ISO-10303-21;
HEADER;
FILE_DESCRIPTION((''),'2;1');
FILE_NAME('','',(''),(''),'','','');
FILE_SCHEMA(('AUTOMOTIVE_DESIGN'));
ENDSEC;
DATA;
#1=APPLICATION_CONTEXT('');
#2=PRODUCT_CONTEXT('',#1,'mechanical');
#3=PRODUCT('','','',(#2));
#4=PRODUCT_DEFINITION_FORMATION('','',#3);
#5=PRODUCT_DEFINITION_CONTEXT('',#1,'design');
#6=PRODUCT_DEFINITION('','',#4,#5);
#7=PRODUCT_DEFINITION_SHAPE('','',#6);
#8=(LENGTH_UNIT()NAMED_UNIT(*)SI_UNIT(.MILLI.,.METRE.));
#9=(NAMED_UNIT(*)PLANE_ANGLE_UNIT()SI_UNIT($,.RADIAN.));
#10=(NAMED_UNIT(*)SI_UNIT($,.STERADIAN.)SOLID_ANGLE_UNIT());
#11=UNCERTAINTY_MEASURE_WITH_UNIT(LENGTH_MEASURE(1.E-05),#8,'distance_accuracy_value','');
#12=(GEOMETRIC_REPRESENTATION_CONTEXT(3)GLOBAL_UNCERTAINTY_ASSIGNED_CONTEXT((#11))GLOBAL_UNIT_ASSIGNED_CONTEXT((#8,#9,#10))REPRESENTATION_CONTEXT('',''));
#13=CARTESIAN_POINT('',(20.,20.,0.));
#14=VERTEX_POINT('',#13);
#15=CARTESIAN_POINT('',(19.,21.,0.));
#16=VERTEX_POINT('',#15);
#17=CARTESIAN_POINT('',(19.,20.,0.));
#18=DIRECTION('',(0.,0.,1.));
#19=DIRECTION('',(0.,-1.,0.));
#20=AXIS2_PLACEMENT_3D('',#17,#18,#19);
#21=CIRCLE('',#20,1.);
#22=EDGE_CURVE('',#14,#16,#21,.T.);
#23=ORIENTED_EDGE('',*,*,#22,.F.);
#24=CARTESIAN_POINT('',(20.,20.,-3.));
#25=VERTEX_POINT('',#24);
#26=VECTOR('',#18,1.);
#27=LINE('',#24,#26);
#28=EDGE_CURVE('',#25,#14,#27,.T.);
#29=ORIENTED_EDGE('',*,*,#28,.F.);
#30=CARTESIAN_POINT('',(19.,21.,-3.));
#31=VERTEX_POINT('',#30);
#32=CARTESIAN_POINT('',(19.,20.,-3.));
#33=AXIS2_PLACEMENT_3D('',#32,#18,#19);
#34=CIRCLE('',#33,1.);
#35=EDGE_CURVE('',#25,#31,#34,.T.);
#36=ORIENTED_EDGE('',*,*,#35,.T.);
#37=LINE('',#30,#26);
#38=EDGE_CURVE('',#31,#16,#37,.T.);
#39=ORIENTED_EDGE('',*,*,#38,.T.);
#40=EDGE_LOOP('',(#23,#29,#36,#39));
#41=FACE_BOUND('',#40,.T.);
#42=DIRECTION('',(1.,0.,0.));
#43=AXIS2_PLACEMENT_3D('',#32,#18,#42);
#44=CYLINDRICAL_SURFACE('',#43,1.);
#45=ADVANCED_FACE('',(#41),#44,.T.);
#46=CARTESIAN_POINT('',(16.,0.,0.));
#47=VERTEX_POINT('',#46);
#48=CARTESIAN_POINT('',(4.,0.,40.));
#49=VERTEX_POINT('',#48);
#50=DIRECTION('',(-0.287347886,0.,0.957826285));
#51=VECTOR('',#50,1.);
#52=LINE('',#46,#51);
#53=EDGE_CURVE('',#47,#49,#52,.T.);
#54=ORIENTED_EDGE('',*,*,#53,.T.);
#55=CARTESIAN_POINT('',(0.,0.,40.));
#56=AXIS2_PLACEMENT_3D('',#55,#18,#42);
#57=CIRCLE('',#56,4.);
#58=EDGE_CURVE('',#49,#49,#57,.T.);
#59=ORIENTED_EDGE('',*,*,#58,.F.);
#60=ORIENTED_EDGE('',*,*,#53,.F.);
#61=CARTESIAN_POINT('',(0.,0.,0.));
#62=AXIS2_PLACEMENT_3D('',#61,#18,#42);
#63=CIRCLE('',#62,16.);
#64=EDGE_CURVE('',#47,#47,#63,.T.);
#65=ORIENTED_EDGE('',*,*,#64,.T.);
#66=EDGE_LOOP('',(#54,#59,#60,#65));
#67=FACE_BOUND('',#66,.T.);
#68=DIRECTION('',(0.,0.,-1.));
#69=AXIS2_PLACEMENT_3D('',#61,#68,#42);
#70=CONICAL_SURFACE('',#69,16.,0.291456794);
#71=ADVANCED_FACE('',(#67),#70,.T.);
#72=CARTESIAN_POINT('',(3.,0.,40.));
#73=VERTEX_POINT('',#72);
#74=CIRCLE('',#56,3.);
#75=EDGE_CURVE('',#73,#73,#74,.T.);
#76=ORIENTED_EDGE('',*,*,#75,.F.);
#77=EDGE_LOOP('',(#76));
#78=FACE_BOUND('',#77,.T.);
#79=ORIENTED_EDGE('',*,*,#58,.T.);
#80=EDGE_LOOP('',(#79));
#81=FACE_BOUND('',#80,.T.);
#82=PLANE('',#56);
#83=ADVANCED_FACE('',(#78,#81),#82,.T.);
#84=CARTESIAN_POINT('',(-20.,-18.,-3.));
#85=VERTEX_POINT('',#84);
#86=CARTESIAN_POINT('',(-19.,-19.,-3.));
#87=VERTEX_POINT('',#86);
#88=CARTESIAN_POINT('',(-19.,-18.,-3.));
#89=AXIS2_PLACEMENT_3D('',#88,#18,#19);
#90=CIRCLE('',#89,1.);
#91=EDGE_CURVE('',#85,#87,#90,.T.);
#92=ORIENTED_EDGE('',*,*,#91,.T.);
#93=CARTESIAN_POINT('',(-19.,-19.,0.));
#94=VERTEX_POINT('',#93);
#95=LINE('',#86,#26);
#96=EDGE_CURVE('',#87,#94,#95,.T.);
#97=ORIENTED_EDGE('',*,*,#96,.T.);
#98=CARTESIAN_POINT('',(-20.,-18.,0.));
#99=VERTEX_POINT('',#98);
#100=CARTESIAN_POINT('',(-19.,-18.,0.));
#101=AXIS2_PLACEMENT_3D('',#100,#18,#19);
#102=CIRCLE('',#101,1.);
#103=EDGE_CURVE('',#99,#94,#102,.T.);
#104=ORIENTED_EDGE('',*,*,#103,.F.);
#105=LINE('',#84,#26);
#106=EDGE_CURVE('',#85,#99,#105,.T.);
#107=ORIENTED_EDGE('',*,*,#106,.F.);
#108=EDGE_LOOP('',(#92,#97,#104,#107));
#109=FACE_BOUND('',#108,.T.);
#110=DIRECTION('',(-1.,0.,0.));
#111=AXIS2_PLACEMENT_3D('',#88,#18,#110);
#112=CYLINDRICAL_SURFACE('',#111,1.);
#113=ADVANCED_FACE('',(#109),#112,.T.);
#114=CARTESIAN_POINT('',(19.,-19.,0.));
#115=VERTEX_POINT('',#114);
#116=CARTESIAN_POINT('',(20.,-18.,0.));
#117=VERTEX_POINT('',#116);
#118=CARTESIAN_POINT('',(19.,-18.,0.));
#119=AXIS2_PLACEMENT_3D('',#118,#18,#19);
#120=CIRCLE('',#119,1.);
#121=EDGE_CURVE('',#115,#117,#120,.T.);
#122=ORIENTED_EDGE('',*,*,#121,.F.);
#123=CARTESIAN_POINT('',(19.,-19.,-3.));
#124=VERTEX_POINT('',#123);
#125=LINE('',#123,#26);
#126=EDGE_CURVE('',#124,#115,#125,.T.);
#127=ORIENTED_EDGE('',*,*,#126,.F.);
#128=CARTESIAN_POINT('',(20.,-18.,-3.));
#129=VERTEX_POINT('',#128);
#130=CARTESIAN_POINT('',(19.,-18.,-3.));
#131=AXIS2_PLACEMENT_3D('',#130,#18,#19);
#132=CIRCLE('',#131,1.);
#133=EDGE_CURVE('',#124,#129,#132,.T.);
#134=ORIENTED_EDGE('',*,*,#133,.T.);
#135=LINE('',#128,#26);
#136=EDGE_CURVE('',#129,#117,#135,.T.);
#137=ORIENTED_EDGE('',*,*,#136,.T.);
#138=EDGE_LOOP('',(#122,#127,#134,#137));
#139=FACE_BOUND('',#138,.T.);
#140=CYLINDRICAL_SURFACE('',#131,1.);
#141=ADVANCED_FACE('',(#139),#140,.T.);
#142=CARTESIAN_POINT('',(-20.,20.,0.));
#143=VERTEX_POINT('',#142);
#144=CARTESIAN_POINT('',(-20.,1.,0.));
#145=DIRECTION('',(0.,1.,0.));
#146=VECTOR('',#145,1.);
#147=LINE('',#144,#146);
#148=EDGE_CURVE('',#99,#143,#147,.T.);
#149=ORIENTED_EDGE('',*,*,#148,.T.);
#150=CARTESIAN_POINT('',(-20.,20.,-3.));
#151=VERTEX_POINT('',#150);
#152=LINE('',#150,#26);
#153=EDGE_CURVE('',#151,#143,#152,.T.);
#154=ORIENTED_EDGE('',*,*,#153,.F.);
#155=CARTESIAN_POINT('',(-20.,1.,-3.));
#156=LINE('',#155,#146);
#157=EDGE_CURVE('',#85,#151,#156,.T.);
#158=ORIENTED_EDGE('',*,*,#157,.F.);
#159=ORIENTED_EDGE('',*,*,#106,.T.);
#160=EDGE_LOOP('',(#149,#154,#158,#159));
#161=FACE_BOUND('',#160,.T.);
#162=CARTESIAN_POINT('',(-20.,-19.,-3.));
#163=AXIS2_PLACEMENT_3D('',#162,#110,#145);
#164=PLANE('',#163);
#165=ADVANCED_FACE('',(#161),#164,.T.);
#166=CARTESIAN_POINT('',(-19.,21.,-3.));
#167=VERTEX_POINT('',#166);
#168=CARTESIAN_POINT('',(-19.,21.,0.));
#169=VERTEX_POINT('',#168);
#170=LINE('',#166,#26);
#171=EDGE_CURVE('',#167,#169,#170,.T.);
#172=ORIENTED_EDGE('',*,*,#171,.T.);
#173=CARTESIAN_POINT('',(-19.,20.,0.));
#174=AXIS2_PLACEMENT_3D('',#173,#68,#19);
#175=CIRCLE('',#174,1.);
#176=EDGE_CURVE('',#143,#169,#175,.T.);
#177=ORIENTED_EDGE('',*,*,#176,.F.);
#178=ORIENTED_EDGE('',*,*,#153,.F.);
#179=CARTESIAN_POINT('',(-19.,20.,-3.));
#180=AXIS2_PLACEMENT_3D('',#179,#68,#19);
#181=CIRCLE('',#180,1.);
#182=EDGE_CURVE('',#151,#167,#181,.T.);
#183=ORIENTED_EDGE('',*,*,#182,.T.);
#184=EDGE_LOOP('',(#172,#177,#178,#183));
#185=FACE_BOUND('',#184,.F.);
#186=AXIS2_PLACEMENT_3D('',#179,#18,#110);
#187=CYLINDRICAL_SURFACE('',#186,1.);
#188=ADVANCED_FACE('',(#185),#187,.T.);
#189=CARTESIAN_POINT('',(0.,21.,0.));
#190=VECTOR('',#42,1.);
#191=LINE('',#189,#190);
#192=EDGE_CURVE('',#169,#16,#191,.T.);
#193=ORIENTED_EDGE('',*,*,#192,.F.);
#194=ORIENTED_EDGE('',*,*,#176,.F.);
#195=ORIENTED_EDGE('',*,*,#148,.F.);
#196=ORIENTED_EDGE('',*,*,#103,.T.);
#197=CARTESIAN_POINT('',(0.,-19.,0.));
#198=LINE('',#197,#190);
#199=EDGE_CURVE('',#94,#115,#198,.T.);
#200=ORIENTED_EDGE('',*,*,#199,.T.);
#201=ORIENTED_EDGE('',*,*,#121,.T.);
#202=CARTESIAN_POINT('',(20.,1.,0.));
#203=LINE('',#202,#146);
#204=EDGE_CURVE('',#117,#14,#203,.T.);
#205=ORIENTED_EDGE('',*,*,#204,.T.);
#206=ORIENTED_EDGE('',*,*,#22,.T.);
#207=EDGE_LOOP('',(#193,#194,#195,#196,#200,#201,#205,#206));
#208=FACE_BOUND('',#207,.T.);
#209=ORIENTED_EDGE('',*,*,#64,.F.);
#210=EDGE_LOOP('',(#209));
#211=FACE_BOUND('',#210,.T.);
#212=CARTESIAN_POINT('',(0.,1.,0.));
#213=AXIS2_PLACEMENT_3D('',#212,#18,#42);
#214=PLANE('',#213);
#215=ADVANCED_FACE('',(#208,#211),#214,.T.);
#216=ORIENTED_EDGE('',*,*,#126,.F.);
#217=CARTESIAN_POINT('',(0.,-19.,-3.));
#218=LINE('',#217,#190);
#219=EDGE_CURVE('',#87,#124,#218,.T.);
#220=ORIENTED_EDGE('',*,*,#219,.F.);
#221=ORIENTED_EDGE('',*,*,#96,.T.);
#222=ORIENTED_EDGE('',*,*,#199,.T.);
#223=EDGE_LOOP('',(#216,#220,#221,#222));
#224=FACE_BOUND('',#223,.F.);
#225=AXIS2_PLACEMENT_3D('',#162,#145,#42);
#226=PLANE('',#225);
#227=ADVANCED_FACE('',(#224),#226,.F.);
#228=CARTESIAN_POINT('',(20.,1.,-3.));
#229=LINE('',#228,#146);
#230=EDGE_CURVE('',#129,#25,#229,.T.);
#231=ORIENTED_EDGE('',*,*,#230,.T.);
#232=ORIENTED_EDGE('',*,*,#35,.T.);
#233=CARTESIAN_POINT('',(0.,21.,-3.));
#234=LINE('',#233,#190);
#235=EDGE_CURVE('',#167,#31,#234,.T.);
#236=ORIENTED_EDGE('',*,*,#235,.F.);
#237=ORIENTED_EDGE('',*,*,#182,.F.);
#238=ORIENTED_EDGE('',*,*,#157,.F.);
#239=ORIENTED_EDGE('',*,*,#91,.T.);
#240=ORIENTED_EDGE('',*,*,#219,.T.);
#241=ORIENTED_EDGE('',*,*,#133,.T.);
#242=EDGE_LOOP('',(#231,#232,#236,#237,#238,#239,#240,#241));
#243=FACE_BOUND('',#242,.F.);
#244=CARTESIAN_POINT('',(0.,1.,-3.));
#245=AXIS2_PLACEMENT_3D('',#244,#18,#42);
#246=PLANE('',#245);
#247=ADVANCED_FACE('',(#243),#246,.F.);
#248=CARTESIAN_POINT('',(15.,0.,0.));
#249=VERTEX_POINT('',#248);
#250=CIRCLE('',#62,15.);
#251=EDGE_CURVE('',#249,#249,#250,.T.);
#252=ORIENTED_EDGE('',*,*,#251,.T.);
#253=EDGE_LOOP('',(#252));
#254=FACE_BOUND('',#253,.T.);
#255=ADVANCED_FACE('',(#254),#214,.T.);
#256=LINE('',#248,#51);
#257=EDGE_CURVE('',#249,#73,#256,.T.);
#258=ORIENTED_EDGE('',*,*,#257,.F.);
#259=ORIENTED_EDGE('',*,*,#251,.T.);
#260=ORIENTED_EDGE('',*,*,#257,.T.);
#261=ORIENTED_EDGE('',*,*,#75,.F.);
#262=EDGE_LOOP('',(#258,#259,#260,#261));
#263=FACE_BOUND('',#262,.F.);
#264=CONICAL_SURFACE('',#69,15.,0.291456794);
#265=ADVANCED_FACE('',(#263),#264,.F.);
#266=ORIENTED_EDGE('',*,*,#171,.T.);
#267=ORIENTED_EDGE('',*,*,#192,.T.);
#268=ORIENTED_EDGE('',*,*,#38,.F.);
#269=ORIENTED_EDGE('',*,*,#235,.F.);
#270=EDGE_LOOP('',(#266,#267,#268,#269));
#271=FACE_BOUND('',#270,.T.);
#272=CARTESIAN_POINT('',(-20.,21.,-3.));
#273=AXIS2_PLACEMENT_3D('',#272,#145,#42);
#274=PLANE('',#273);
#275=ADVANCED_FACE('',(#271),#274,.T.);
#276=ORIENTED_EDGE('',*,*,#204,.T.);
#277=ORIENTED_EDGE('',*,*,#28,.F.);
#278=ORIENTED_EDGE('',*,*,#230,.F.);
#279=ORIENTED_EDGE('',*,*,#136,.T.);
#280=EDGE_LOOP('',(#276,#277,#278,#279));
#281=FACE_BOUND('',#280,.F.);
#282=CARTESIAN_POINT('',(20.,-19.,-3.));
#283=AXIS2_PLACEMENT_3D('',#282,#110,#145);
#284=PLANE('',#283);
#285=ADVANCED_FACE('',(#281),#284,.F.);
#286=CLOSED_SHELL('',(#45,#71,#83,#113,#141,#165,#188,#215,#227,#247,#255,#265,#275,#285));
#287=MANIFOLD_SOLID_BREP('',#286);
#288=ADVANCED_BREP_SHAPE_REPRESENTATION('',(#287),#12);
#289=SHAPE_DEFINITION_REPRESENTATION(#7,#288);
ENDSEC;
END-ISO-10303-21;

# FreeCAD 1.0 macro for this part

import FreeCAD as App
import Part
import Sketcher

V = App.Vector
Q = App.Units.Quantity


def edges_at(feature, points):
    """Names of the edges that pass closest to the given points."""
    edges = feature.Shape.Edges
    near = lambda p: min(range(len(edges)), key=lambda i: edges[i].distToShape(Part.Vertex(*p))[0])
    return sorted({f"Edge{near(p) + 1}" for p in points})

doc = App.newDocument("Part")
body = doc.addObject("PartDesign::Body", "Body")

sketch1 = body.newObject("Sketcher::SketchObject", "Sketch")
sketch1.AttachmentSupport = (doc.getObject("XY_Plane"), [""])
sketch1.MapMode = "FlatFace"
sketch1.AttachmentOffset = App.Placement(V(0, 0, -3), App.Rotation())
sketch1.addGeometry([
    Part.LineSegment(V(0, 40, 0), V(0, 0, 0)),
    Part.LineSegment(V(0, 0, 0), V(40, 0, 0)),
    Part.LineSegment(V(40, 0, 0), V(40, 40, 0)),
    Part.LineSegment(V(40, 40, 0), V(0, 40, 0)),
], False)
sketch1.addConstraint([
    Sketcher.Constraint("Coincident", 0, 2, 1, 1),
    Sketcher.Constraint("Coincident", 1, 2, 2, 1),
    Sketcher.Constraint("Coincident", 2, 2, 3, 1),
    Sketcher.Constraint("Coincident", 3, 2, 0, 1),
    Sketcher.Constraint("Vertical", 0),
    Sketcher.Constraint("Horizontal", 1),
    Sketcher.Constraint("Vertical", 2),
    Sketcher.Constraint("Horizontal", 3),
    Sketcher.Constraint("Coincident", 0, 2, -1, 1),
    Sketcher.Constraint("Equal", 3, 0),
    Sketcher.Constraint("DistanceX", 1, 1, 1, 2, Q("40 mm")),
])
pad1 = body.newObject("PartDesign::Pad", "Pad")
pad1.Profile = sketch1
pad1.Length = 3
doc.recompute()

fillet = body.newObject("PartDesign::Fillet", "Fillet")
fillet.Base = (pad1, edges_at(pad1, [
    (0, 0, -1.5),
    (0, 40, -1.5),
    (40, 0, -1.5),
    (40, 40, -1.5),
]))
fillet.Radius = 1
body2 = doc.addObject("PartDesign::Body", "Body001")
doc.recompute()

body.Placement = App.Placement(V(-20, -19, 0), App.Rotation(V(0, 0, 1), 0))
boolean = body2.newObject("PartDesign::Boolean", "Boolean")
boolean.Type = "Fuse"
boolean.addObjects([body])
body3 = doc.addObject("PartDesign::Body", "Body002")

sketch2 = body3.newObject("Sketcher::SketchObject", "Sketch001")
sketch2.AttachmentSupport = (doc.getObject("XZ_Plane002"), [""])
sketch2.MapMode = "FlatFace"
sketch2.addGeometry([
    Part.LineSegment(V(0, 0, 0), V(15, 0, 0)),
    Part.LineSegment(V(15, 0, 0), V(3, 40, 0)),
    Part.LineSegment(V(3, 40, 0), V(0, 40, 0)),
    Part.LineSegment(V(0, 40, 0), V(0, 0, 0)),
], False)
sketch2.addConstraint([
    Sketcher.Constraint("Coincident", 0, 2, 1, 1),
    Sketcher.Constraint("Coincident", 1, 2, 2, 1),
    Sketcher.Constraint("Coincident", 2, 2, 3, 1),
    Sketcher.Constraint("Coincident", 3, 2, 0, 1),
    Sketcher.Constraint("Horizontal", 0),
    Sketcher.Constraint("Horizontal", 2),
    Sketcher.Constraint("Vertical", 3),
    Sketcher.Constraint("Coincident", 3, 2, -1, 1),
    Sketcher.Constraint("DistanceX", 0, 1, 0, 2, Q("15 mm")),
    Sketcher.Constraint("DistanceX", 2, 2, 2, 1, Q("3 mm")),
    Sketcher.Constraint("DistanceY", 3, 2, 3, 1, Q("40 mm")),
])
revolution = body3.newObject("PartDesign::Revolution", "Revolution")
revolution.Profile = sketch2
revolution.ReferenceAxis = (sketch2, ["V_Axis"])
revolution.Angle = 360
body4 = doc.addObject("PartDesign::Body", "Body003")

sketch3 = body4.newObject("Sketcher::SketchObject", "Sketch002")
sketch3.AttachmentSupport = (doc.getObject("XZ_Plane003"), [""])
sketch3.MapMode = "FlatFace"
sketch3.addGeometry([
    Part.LineSegment(V(0, 0, 0), V(16, 0, 0)),
    Part.LineSegment(V(16, 0, 0), V(4, 40, 0)),
    Part.LineSegment(V(4, 40, 0), V(0, 40, 0)),
    Part.LineSegment(V(0, 40, 0), V(0, 0, 0)),
], False)
sketch3.addConstraint([
    Sketcher.Constraint("Coincident", 0, 2, 1, 1),
    Sketcher.Constraint("Coincident", 1, 2, 2, 1),
    Sketcher.Constraint("Coincident", 2, 2, 3, 1),
    Sketcher.Constraint("Coincident", 3, 2, 0, 1),
    Sketcher.Constraint("Horizontal", 0),
    Sketcher.Constraint("Horizontal", 2),
    Sketcher.Constraint("Vertical", 3),
    Sketcher.Constraint("Coincident", 3, 2, -1, 1),
    Sketcher.Constraint("DistanceX", 0, 1, 0, 2, Q("16 mm")),
    Sketcher.Constraint("DistanceX", 2, 2, 2, 1, Q("4 mm")),
    Sketcher.Constraint("DistanceY", 3, 2, 3, 1, Q("40 mm")),
])
revolution2 = body4.newObject("PartDesign::Revolution", "Revolution001")
revolution2.Profile = sketch3
revolution2.ReferenceAxis = (sketch3, ["V_Axis"])
revolution2.Angle = 360
doc.recompute()

boolean2 = body4.newObject("PartDesign::Boolean", "Boolean001")
boolean2.Type = "Cut"
boolean2.addObjects([body3])
doc.recompute()

boolean3 = body4.newObject("PartDesign::Boolean", "Boolean002")
boolean3.Type = "Fuse"
boolean3.addObjects([body2])

doc.recompute()
